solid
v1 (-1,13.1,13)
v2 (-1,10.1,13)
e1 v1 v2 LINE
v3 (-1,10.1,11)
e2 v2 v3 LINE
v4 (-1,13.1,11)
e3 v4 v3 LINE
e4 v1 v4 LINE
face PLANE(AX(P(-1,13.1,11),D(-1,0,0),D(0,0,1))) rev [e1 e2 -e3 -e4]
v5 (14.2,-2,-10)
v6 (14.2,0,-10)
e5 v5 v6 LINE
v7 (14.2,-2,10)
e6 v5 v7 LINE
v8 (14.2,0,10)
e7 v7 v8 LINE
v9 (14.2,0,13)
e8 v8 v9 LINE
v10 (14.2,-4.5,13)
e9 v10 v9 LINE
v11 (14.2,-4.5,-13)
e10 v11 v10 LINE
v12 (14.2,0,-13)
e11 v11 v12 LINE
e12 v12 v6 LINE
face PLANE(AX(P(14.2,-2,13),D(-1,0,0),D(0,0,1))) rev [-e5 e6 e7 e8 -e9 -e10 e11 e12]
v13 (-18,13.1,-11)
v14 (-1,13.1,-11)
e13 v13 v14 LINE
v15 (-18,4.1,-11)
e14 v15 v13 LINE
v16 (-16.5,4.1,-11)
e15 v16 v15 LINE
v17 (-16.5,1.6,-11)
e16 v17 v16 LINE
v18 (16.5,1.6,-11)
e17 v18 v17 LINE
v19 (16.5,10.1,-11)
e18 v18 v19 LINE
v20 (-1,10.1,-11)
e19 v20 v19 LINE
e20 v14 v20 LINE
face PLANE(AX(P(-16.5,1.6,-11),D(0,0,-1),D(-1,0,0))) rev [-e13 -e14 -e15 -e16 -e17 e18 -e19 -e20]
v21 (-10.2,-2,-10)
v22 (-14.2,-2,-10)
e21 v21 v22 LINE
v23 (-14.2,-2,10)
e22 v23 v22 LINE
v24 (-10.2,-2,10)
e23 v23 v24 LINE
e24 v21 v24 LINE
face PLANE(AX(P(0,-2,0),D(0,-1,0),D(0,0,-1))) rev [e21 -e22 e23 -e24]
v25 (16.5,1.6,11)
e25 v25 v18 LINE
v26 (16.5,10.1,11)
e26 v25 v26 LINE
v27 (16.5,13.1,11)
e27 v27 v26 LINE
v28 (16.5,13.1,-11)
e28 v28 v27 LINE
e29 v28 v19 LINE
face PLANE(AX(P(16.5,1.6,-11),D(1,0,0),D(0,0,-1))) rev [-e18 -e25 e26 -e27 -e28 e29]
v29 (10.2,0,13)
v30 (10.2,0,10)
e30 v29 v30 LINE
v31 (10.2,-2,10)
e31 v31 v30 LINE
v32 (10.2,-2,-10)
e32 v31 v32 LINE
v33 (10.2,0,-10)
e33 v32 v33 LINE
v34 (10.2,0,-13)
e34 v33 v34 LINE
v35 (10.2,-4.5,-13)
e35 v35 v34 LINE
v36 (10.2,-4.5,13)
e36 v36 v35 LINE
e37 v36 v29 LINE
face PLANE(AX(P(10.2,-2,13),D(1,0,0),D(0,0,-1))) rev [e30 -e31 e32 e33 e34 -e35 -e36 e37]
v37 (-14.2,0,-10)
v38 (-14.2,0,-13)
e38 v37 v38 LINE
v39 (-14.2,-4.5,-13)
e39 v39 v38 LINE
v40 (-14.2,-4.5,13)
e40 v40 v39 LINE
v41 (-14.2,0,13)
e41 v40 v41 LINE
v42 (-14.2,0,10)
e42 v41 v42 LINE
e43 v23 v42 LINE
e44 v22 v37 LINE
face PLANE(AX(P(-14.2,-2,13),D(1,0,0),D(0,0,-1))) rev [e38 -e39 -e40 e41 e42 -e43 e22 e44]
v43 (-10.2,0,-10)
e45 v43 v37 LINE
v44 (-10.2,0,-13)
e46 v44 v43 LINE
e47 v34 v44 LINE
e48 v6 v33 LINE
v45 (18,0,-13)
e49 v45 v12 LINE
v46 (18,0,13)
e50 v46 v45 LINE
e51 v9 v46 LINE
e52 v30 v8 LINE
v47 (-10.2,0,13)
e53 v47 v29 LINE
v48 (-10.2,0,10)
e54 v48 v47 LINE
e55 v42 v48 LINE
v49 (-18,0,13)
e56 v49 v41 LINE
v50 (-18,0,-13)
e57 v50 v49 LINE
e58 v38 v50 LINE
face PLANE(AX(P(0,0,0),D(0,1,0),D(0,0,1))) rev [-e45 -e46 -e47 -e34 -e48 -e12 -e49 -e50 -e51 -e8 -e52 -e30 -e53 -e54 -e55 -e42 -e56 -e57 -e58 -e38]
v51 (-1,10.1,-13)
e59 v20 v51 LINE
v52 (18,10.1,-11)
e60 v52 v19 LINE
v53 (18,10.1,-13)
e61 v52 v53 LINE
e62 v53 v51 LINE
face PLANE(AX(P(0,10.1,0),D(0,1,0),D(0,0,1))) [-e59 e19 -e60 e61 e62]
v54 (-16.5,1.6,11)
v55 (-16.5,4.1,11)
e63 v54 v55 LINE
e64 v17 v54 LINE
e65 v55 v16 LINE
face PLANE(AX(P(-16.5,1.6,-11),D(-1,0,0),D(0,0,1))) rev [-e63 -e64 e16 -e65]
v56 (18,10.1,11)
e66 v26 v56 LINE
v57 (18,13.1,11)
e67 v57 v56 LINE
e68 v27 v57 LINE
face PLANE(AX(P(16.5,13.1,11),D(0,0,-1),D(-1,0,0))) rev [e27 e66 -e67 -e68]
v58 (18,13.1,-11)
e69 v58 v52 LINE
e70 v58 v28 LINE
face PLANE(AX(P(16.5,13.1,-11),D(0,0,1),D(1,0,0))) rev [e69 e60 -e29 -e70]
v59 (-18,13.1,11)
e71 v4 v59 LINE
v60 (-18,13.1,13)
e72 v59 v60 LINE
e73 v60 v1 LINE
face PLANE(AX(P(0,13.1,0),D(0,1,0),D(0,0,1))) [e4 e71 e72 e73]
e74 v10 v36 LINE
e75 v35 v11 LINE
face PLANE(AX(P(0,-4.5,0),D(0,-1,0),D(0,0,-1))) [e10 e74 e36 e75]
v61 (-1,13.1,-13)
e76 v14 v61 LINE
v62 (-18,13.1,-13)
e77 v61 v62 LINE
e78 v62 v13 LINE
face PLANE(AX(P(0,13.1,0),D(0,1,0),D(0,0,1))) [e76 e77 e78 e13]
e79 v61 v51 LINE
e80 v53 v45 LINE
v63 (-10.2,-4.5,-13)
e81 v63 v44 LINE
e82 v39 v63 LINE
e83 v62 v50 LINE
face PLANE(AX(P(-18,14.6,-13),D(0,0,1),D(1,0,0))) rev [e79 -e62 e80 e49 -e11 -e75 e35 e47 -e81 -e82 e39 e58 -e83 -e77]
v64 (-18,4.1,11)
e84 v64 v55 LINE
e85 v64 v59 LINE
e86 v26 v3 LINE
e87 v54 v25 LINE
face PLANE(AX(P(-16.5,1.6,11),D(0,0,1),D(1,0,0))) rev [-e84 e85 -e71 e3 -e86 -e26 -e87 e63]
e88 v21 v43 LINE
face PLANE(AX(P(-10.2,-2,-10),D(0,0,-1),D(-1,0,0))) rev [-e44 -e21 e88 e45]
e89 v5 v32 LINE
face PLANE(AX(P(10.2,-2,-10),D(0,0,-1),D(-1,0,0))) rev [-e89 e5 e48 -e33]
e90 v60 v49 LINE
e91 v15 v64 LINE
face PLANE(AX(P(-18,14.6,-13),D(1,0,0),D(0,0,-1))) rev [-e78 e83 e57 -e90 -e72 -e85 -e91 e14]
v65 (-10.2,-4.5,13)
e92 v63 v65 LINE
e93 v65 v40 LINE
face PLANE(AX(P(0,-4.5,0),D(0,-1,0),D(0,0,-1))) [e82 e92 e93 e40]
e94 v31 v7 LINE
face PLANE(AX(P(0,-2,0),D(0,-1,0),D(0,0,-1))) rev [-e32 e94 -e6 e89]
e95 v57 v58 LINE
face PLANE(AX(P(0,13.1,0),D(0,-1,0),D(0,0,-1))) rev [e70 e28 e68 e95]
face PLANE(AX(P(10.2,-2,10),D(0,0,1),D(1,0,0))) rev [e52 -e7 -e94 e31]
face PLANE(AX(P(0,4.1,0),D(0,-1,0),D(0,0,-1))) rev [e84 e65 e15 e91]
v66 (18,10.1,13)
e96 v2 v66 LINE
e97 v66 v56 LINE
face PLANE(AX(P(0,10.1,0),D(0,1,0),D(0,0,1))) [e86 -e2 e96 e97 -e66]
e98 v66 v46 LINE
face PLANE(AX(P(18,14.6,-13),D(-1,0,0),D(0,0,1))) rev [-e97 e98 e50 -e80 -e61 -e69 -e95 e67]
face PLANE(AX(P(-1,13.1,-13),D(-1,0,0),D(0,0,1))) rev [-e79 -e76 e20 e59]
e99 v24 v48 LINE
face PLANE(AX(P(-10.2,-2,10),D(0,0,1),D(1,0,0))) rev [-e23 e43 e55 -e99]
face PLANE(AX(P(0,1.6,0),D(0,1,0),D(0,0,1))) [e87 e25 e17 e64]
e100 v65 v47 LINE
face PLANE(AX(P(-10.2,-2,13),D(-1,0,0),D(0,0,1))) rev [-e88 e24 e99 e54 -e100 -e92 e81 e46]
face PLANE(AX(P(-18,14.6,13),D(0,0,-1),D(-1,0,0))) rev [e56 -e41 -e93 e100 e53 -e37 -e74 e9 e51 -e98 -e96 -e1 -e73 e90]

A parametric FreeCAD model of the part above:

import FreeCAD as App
import Part
import Sketcher
from FreeCAD import Vector
Q = App.Units.Quantity

doc = App.newDocument("Part")
params = doc.addObject("Spreadsheet::Sheet", "Params")
for row, (alias, value) in enumerate([
    ("sketch1_width", "36 mm"),
    ("sketch1_height", "26 mm"),
    ("pad1_length", "14.6 mm"),
    ("sketch2_width", "33 mm"),
    ("sketch2_height", "22 mm"),
    ("pocket1_length", "13 mm"),
    ("sketch3_width", "36 mm"),
    ("sketch3_height", "26 mm"),
    ("pocket2_length", "4.5 mm"),
    ("sketch4_height", "22 mm"),
    ("sketch4_width", "1.5 mm"),
    ("pocket3_length", "6 mm"),
    ("sketch5_width", "17 mm"),
    ("sketch5_height", "2 mm"),
    ("sketch5_height2", "22 mm"),
    ("sketch5_width2", "1.5 mm"),
    ("pad2_length", "3 mm"),
    ("sketch6_width", "4 mm"),
    ("sketch6_height", "3 mm"),
    ("pad3_length", "2 mm"),
    ("sketch7_width", "4 mm"),
    ("sketch7_height", "26 mm"),
    ("pad4_length", "2.5 mm"),
], start=1):
    params.set(f"A{row}", alias)
    params.set(f"B{row}", "=" + value)
    params.setAlias(f"B{row}", alias)

body = doc.addObject("PartDesign::Body", "Body")

sketch1 = body.newObject("Sketcher::SketchObject", "Sketch")
sketch1.AttachmentSupport = (doc.getObject("XZ_Plane"), [""])
sketch1.MapMode = "FlatFace"
sketch1.addGeometry(Part.LineSegment(Vector(-18, -13, 0), Vector(-18, 13, 0)), False)
sketch1.addGeometry(Part.LineSegment(Vector(-18, 13, 0), Vector(18, 13, 0)), False)
sketch1.addGeometry(Part.LineSegment(Vector(18, 13, 0), Vector(18, -13, 0)), False)
sketch1.addGeometry(Part.LineSegment(Vector(18, -13, 0), Vector(-18, -13, 0)), False)
sketch1.addConstraint(Sketcher.Constraint("Coincident", 0, 2, 1, 1))
sketch1.addConstraint(Sketcher.Constraint("Coincident", 1, 2, 2, 1))
sketch1.addConstraint(Sketcher.Constraint("Coincident", 2, 2, 3, 1))
sketch1.addConstraint(Sketcher.Constraint("Coincident", 3, 2, 0, 1))
sketch1.addConstraint(Sketcher.Constraint("Vertical", 0))
sketch1.addConstraint(Sketcher.Constraint("Horizontal", 1))
sketch1.addConstraint(Sketcher.Constraint("Vertical", 2))
sketch1.addConstraint(Sketcher.Constraint("Horizontal", 3))
sketch1.addConstraint(Sketcher.Constraint("Symmetric", 0, 2, 2, 2, -1, 1))
sketch1.addConstraint(Sketcher.Constraint("DistanceX", 1, 1, 1, 2, Q("36 mm")))
sketch1.addConstraint(Sketcher.Constraint("DistanceY", 0, 1, 0, 2, Q("26 mm")))
sketch1.setExpression("Constraints[9]", "Params.sketch1_width")
sketch1.setExpression("Constraints[10]", "Params.sketch1_height")
pad1 = body.newObject("PartDesign::Pad", "Pad")
pad1.Profile = sketch1
pad1.setExpression("Length", "Params.pad1_length")
pad1.Reversed = True

sketch2 = body.newObject("Sketcher::SketchObject", "Sketch001")
sketch2.AttachmentSupport = (doc.getObject("XZ_Plane"), [""])
sketch2.MapMode = "FlatFace"
sketch2.AttachmentOffset = App.Placement(Vector(0, 0, -14.6), App.Rotation())
sketch2.addGeometry(Part.LineSegment(Vector(-16, -11, 0), Vector(-16, 11, 0)), False)
sketch2.addGeometry(Part.LineSegment(Vector(-16, 11, 0), Vector(16, 11, 0)), False)
sketch2.addGeometry(Part.LineSegment(Vector(16, 11, 0), Vector(16, -11, 0)), False)
sketch2.addGeometry(Part.LineSegment(Vector(16, -11, 0), Vector(-16, -11, 0)), False)
sketch2.addConstraint(Sketcher.Constraint("Coincident", 0, 2, 1, 1))
sketch2.addConstraint(Sketcher.Constraint("Coincident", 1, 2, 2, 1))
sketch2.addConstraint(Sketcher.Constraint("Coincident", 2, 2, 3, 1))
sketch2.addConstraint(Sketcher.Constraint("Coincident", 3, 2, 0, 1))
sketch2.addConstraint(Sketcher.Constraint("Vertical", 0))
sketch2.addConstraint(Sketcher.Constraint("Horizontal", 1))
sketch2.addConstraint(Sketcher.Constraint("Vertical", 2))
sketch2.addConstraint(Sketcher.Constraint("Horizontal", 3))
sketch2.addConstraint(Sketcher.Constraint("Symmetric", 0, 2, 2, 2, -1, 1))
sketch2.addConstraint(Sketcher.Constraint("DistanceX", 1, 1, 1, 2, Q("33 mm")))
sketch2.addConstraint(Sketcher.Constraint("DistanceY", 0, 1, 0, 2, Q("22 mm")))
sketch2.setExpression("Constraints[9]", "Params.sketch2_width")
sketch2.setExpression("Constraints[10]", "Params.sketch2_height")
pocket1 = body.newObject("PartDesign::Pocket", "Pocket")
pocket1.Profile = sketch2
pocket1.setExpression("Length", "Params.pocket1_length")
pocket1.Reversed = True

sketch3 = body.newObject("Sketcher::SketchObject", "Sketch002")
sketch3.AttachmentSupport = (doc.getObject("XZ_Plane"), [""])
sketch3.MapMode = "FlatFace"
sketch3.AttachmentOffset = App.Placement(Vector(0, 0, -14.6), App.Rotation())
sketch3.addGeometry(Part.LineSegment(Vector(-18, -13, 0), Vector(-18, 13, 0)), False)
sketch3.addGeometry(Part.LineSegment(Vector(-18, 13, 0), Vector(18, 13, 0)), False)
sketch3.addGeometry(Part.LineSegment(Vector(18, 13, 0), Vector(18, -13, 0)), False)
sketch3.addGeometry(Part.LineSegment(Vector(18, -13, 0), Vector(-18, -13, 0)), False)
sketch3.addConstraint(Sketcher.Constraint("Coincident", 0, 2, 1, 1))
sketch3.addConstraint(Sketcher.Constraint("Coincident", 1, 2, 2, 1))
sketch3.addConstraint(Sketcher.Constraint("Coincident", 2, 2, 3, 1))
sketch3.addConstraint(Sketcher.Constraint("Coincident", 3, 2, 0, 1))
sketch3.addConstraint(Sketcher.Constraint("Vertical", 0))
sketch3.addConstraint(Sketcher.Constraint("Horizontal", 1))
sketch3.addConstraint(Sketcher.Constraint("Vertical", 2))
sketch3.addConstraint(Sketcher.Constraint("Horizontal", 3))
sketch3.addConstraint(Sketcher.Constraint("Symmetric", 0, 2, 2, 2, -1, 1))
sketch3.addConstraint(Sketcher.Constraint("DistanceX", 1, 1, 1, 2, Q("36 mm")))
sketch3.addConstraint(Sketcher.Constraint("DistanceY", 0, 1, 0, 2, Q("26 mm")))
sketch3.setExpression("Constraints[9]", "Params.sketch3_width")
sketch3.setExpression("Constraints[10]", "Params.sketch3_height")
pocket2 = body.newObject("PartDesign::Pocket", "Pocket001")
pocket2.Profile = sketch3
pocket2.setExpression("Length", "Params.pocket2_length")
pocket2.Reversed = True

sketch4 = body.newObject("Sketcher::SketchObject", "Sketch003")
sketch4.AttachmentSupport = (doc.getObject("XZ_Plane"), [""])
sketch4.MapMode = "FlatFace"
sketch4.AttachmentOffset = App.Placement(Vector(0, 0, -10.1), App.Rotation())
sketch4.addGeometry(Part.LineSegment(Vector(-18, -11, 0), Vector(-18, 11, 0)), False)
sketch4.addGeometry(Part.LineSegment(Vector(-18, 11, 0), Vector(-16.5, 11, 0)), False)
sketch4.addGeometry(Part.LineSegment(Vector(-16.5, 11, 0), Vector(-16.5, -11, 0)), False)
sketch4.addGeometry(Part.LineSegment(Vector(-16.5, -11, 0), Vector(-18, -11, 0)), False)
sketch4.addConstraint(Sketcher.Constraint("Coincident", 0, 2, 1, 1))
sketch4.addConstraint(Sketcher.Constraint("Coincident", 1, 2, 2, 1))
sketch4.addConstraint(Sketcher.Constraint("Coincident", 2, 2, 3, 1))
sketch4.addConstraint(Sketcher.Constraint("Coincident", 3, 2, 0, 1))
sketch4.addConstraint(Sketcher.Constraint("Vertical", 0))
sketch4.addConstraint(Sketcher.Constraint("Horizontal", 1))
sketch4.addConstraint(Sketcher.Constraint("Vertical", 2))
sketch4.addConstraint(Sketcher.Constraint("Horizontal", 3))
sketch4.addConstraint(Sketcher.Constraint("DistanceY", 0, 1, 0, 2, Q("22 mm")))
sketch4.addConstraint(Sketcher.Constraint("DistanceX", 1, 1, 1, 2, Q("1.5 mm")))
sketch4.addConstraint(Sketcher.Constraint("DistanceX", 0, 2, -1, 1, Q("18 mm")))
sketch4.addConstraint(Sketcher.Constraint("DistanceY", -1, 1, 0, 2, Q("11 mm")))
sketch4.setExpression("Constraints[8]", "Params.sketch4_height")
sketch4.setExpression("Constraints[9]", "Params.sketch4_width")
pocket3 = body.newObject("PartDesign::Pocket", "Pocket002")
pocket3.Profile = sketch4
pocket3.setExpression("Length", "Params.pocket3_length")
pocket3.Reversed = True

sketch5 = body.newObject("Sketcher::SketchObject", "Sketch004")
sketch5.AttachmentSupport = (doc.getObject("XZ_Plane"), [""])
sketch5.MapMode = "FlatFace"
sketch5.AttachmentOffset = App.Placement(Vector(0, 0, -10.1), App.Rotation())
sketch5.addGeometry(Part.LineSegment(Vector(-18, -13, 0), Vector(-18, -11, 0)), False)
sketch5.addGeometry(Part.LineSegment(Vector(-18, -11, 0), Vector(-1, -11, 0)), False)
sketch5.addGeometry(Part.LineSegment(Vector(-1, -11, 0), Vector(-1, -13, 0)), False)
sketch5.addGeometry(Part.LineSegment(Vector(-1, -13, 0), Vector(-18, -13, 0)), False)
sketch5.addGeometry(Part.LineSegment(Vector(-18, 11, 0), Vector(-18, 13, 0)), False)
sketch5.addGeometry(Part.LineSegment(Vector(-18, 13, 0), Vector(-1, 13, 0)), False)
sketch5.addGeometry(Part.LineSegment(Vector(-1, 13, 0), Vector(-1, 11, 0)), False)
sketch5.addGeometry(Part.LineSegment(Vector(-1, 11, 0), Vector(-18, 11, 0)), False)
sketch5.addGeometry(Part.LineSegment(Vector(16.5, -11, 0), Vector(16.5, 11, 0)), False)
sketch5.addGeometry(Part.LineSegment(Vector(16.5, 11, 0), Vector(18, 11, 0)), False)
sketch5.addGeometry(Part.LineSegment(Vector(18, 11, 0), Vector(18, -11, 0)), False)
sketch5.addGeometry(Part.LineSegment(Vector(18, -11, 0), Vector(16.5, -11, 0)), False)
sketch5.addConstraint(Sketcher.Constraint("Coincident", 0, 2, 1, 1))
sketch5.addConstraint(Sketcher.Constraint("Coincident", 1, 2, 2, 1))
sketch5.addConstraint(Sketcher.Constraint("Coincident", 2, 2, 3, 1))
sketch5.addConstraint(Sketcher.Constraint("Coincident", 3, 2, 0, 1))
sketch5.addConstraint(Sketcher.Constraint("Coincident", 4, 2, 5, 1))
sketch5.addConstraint(Sketcher.Constraint("Coincident", 5, 2, 6, 1))
sketch5.addConstraint(Sketcher.Constraint("Coincident", 6, 2, 7, 1))
sketch5.addConstraint(Sketcher.Constraint("Coincident", 7, 2, 4, 1))
sketch5.addConstraint(Sketcher.Constraint("Coincident", 8, 2, 9, 1))
sketch5.addConstraint(Sketcher.Constraint("Coincident", 9, 2, 10, 1))
sketch5.addConstraint(Sketcher.Constraint("Coincident", 10, 2, 11, 1))
sketch5.addConstraint(Sketcher.Constraint("Coincident", 11, 2, 8, 1))
sketch5.addConstraint(Sketcher.Constraint("Vertical", 0))
sketch5.addConstraint(Sketcher.Constraint("Horizontal", 1))
sketch5.addConstraint(Sketcher.Constraint("Vertical", 2))
sketch5.addConstraint(Sketcher.Constraint("Horizontal", 3))
sketch5.addConstraint(Sketcher.Constraint("Vertical", 4))
sketch5.addConstraint(Sketcher.Constraint("Horizontal", 5))
sketch5.addConstraint(Sketcher.Constraint("Vertical", 6))
sketch5.addConstraint(Sketcher.Constraint("Horizontal", 7))
sketch5.addConstraint(Sketcher.Constraint("Vertical", 8))
sketch5.addConstraint(Sketcher.Constraint("Horizontal", 9))
sketch5.addConstraint(Sketcher.Constraint("Vertical", 10))
sketch5.addConstraint(Sketcher.Constraint("Horizontal", 11))
sketch5.addConstraint(Sketcher.Constraint("Symmetric", 0, 2, 9, 2, -1, 1))
sketch5.addConstraint(Sketcher.Constraint("Symmetric", 7, 2, 10, 2, -1, 1))
sketch5.addConstraint(Sketcher.Constraint("Symmetric", 2, 2, 5, 2, -1))
sketch5.addConstraint(Sketcher.Constraint("Horizontal", 7, 2, 8, 2))
sketch5.addConstraint(Sketcher.Constraint("DistanceX", 1, 1, 1, 2, Q("17 mm")))
sketch5.addConstraint(Sketcher.Constraint("DistanceY", 0, 1, 0, 2, Q("2 mm")))
sketch5.addConstraint(Sketcher.Constraint("DistanceY", 8, 1, 8, 2, Q("22 mm")))
sketch5.addConstraint(Sketcher.Constraint("DistanceX", 9, 1, 9, 2, Q("1.5 mm")))
sketch5.addConstraint(Sketcher.Constraint("DistanceX", 0, 2, -1, 1, Q("18 mm")))
sketch5.setExpression("Constraints[28]", "Params.sketch5_width")
sketch5.setExpression("Constraints[29]", "Params.sketch5_height")
sketch5.setExpression("Constraints[30]", "Params.sketch5_height2")
sketch5.setExpression("Constraints[31]", "Params.sketch5_width2")
pad2 = body.newObject("PartDesign::Pad", "Pad001")
pad2.Profile = sketch5
pad2.setExpression("Length", "Params.pad2_length")
pad2.Reversed = True

sketch6 = body.newObject("Sketcher::SketchObject", "Sketch005")
sketch6.AttachmentSupport = (doc.getObject("XZ_Plane"), [""])
sketch6.MapMode = "FlatFace"
sketch6.addGeometry(Part.LineSegment(Vector(14.2, 10, 0), Vector(14.2, 13, 0)), False)
sketch6.addGeometry(Part.LineSegment(Vector(14.2, 13, 0), Vector(10.2, 13, 0)), False)
sketch6.addGeometry(Part.LineSegment(Vector(10.2, 13, 0), Vector(10.2, 10, 0)), False)
sketch6.addGeometry(Part.LineSegment(Vector(10.2, 10, 0), Vector(14.2, 10, 0)), False)
sketch6.addGeometry(Part.LineSegment(Vector(-10.2, 10, 0), Vector(-10.2, 13, 0)), False)
sketch6.addGeometry(Part.LineSegment(Vector(-10.2, 13, 0), Vector(-14.2, 13, 0)), False)
sketch6.addGeometry(Part.LineSegment(Vector(-14.2, 13, 0), Vector(-14.2, 10, 0)), False)
sketch6.addGeometry(Part.LineSegment(Vector(-14.2, 10, 0), Vector(-10.2, 10, 0)), False)
sketch6.addGeometry(Part.LineSegment(Vector(14.2, -13, 0), Vector(14.2, -10, 0)), False)
sketch6.addGeometry(Part.LineSegment(Vector(14.2, -10, 0), Vector(10.2, -10, 0)), False)
sketch6.addGeometry(Part.LineSegment(Vector(10.2, -10, 0), Vector(10.2, -13, 0)), False)
sketch6.addGeometry(Part.LineSegment(Vector(10.2, -13, 0), Vector(14.2, -13, 0)), False)
sketch6.addGeometry(Part.LineSegment(Vector(-10.2, -13, 0), Vector(-10.2, -10, 0)), False)
sketch6.addGeometry(Part.LineSegment(Vector(-10.2, -10, 0), Vector(-14.2, -10, 0)), False)
sketch6.addGeometry(Part.LineSegment(Vector(-14.2, -10, 0), Vector(-14.2, -13, 0)), False)
sketch6.addGeometry(Part.LineSegment(Vector(-14.2, -13, 0), Vector(-10.2, -13, 0)), False)
sketch6.addConstraint(Sketcher.Constraint("Coincident", 0, 2, 1, 1))
sketch6.addConstraint(Sketcher.Constraint("Coincident", 1, 2, 2, 1))
sketch6.addConstraint(Sketcher.Constraint("Coincident", 2, 2, 3, 1))
sketch6.addConstraint(Sketcher.Constraint("Coincident", 3, 2, 0, 1))
sketch6.addConstraint(Sketcher.Constraint("Coincident", 4, 2, 5, 1))
sketch6.addConstraint(Sketcher.Constraint("Coincident", 5, 2, 6, 1))
sketch6.addConstraint(Sketcher.Constraint("Coincident", 6, 2, 7, 1))
sketch6.addConstraint(Sketcher.Constraint("Coincident", 7, 2, 4, 1))
sketch6.addConstraint(Sketcher.Constraint("Coincident", 8, 2, 9, 1))
sketch6.addConstraint(Sketcher.Constraint("Coincident", 9, 2, 10, 1))
sketch6.addConstraint(Sketcher.Constraint("Coincident", 10, 2, 11, 1))
sketch6.addConstraint(Sketcher.Constraint("Coincident", 11, 2, 8, 1))
sketch6.addConstraint(Sketcher.Constraint("Coincident", 12, 2, 13, 1))
sketch6.addConstraint(Sketcher.Constraint("Coincident", 13, 2, 14, 1))
sketch6.addConstraint(Sketcher.Constraint("Coincident", 14, 2, 15, 1))
sketch6.addConstraint(Sketcher.Constraint("Coincident", 15, 2, 12, 1))
sketch6.addConstraint(Sketcher.Constraint("Vertical", 0))
sketch6.addConstraint(Sketcher.Constraint("Horizontal", 1))
sketch6.addConstraint(Sketcher.Constraint("Vertical", 2))
sketch6.addConstraint(Sketcher.Constraint("Horizontal", 3))
sketch6.addConstraint(Sketcher.Constraint("Vertical", 4))
sketch6.addConstraint(Sketcher.Constraint("Horizontal", 5))
sketch6.addConstraint(Sketcher.Constraint("Vertical", 6))
sketch6.addConstraint(Sketcher.Constraint("Horizontal", 7))
sketch6.addConstraint(Sketcher.Constraint("Vertical", 8))
sketch6.addConstraint(Sketcher.Constraint("Horizontal", 9))
sketch6.addConstraint(Sketcher.Constraint("Vertical", 10))
sketch6.addConstraint(Sketcher.Constraint("Horizontal", 11))
sketch6.addConstraint(Sketcher.Constraint("Vertical", 12))
sketch6.addConstraint(Sketcher.Constraint("Horizontal", 13))
sketch6.addConstraint(Sketcher.Constraint("Vertical", 14))
sketch6.addConstraint(Sketcher.Constraint("Horizontal", 15))
sketch6.addConstraint(Sketcher.Constraint("Symmetric", 6, 2, 8, 2, -1, 1))
sketch6.addConstraint(Sketcher.Constraint("Symmetric", 4, 2, 10, 2, -1, 1))
sketch6.addConstraint(Sketcher.Constraint("Symmetric", 2, 2, 12, 2, -1, 1))
sketch6.addConstraint(Sketcher.Constraint("Symmetric", 0, 2, 14, 2, -1, 1))
sketch6.addConstraint(Sketcher.Constraint("Symmetric", 1, 2, 4, 2, -2))
sketch6.addConstraint(Sketcher.Constraint("Symmetric", 3, 2, 6, 2, -2))
sketch6.addConstraint(Sketcher.Constraint("DistanceX", 1, 2, 1, 1, Q("4 mm")))
sketch6.addConstraint(Sketcher.Constraint("DistanceY", 0, 1, 0, 2, Q("3 mm")))
sketch6.addConstraint(Sketcher.Constraint("DistanceY", -1, 1, 0, 2, Q("13 mm")))
sketch6.addConstraint(Sketcher.Constraint("DistanceX", -1, 1, 0, 2, Q("14.2 mm")))
sketch6.setExpression("Constraints[38]", "Params.sketch6_width")
sketch6.setExpression("Constraints[39]", "Params.sketch6_height")
pad3 = body.newObject("PartDesign::Pad", "Pad002")
pad3.Profile = sketch6
pad3.setExpression("Length", "Params.pad3_length")

sketch7 = body.newObject("Sketcher::SketchObject", "Sketch006")
sketch7.AttachmentSupport = (doc.getObject("XZ_Plane"), [""])
sketch7.MapMode = "FlatFace"
sketch7.AttachmentOffset = App.Placement(Vector(0, 0, 2), App.Rotation())
sketch7.addGeometry(Part.LineSegment(Vector(14.2, -13, 0), Vector(14.2, 13, 0)), False)
sketch7.addGeometry(Part.LineSegment(Vector(14.2, 13, 0), Vector(10.2, 13, 0)), False)
sketch7.addGeometry(Part.LineSegment(Vector(10.2, 13, 0), Vector(10.2, -13, 0)), False)
sketch7.addGeometry(Part.LineSegment(Vector(10.2, -13, 0), Vector(14.2, -13, 0)), False)
sketch7.addGeometry(Part.LineSegment(Vector(-10.2, -13, 0), Vector(-10.2, 13, 0)), False)
sketch7.addGeometry(Part.LineSegment(Vector(-10.2, 13, 0), Vector(-14.2, 13, 0)), False)
sketch7.addGeometry(Part.LineSegment(Vector(-14.2, 13, 0), Vector(-14.2, -13, 0)), False)
sketch7.addGeometry(Part.LineSegment(Vector(-14.2, -13, 0), Vector(-10.2, -13, 0)), False)
sketch7.addConstraint(Sketcher.Constraint("Coincident", 0, 2, 1, 1))
sketch7.addConstraint(Sketcher.Constraint("Coincident", 1, 2, 2, 1))
sketch7.addConstraint(Sketcher.Constraint("Coincident", 2, 2, 3, 1))
sketch7.addConstraint(Sketcher.Constraint("Coincident", 3, 2, 0, 1))
sketch7.addConstraint(Sketcher.Constraint("Coincident", 4, 2, 5, 1))
sketch7.addConstraint(Sketcher.Constraint("Coincident", 5, 2, 6, 1))
sketch7.addConstraint(Sketcher.Constraint("Coincident", 6, 2, 7, 1))
sketch7.addConstraint(Sketcher.Constraint("Coincident", 7, 2, 4, 1))
sketch7.addConstraint(Sketcher.Constraint("Vertical", 0))
sketch7.addConstraint(Sketcher.Constraint("Horizontal", 1))
sketch7.addConstraint(Sketcher.Constraint("Vertical", 2))
sketch7.addConstraint(Sketcher.Constraint("Horizontal", 3))
sketch7.addConstraint(Sketcher.Constraint("Vertical", 4))
sketch7.addConstraint(Sketcher.Constraint("Horizontal", 5))
sketch7.addConstraint(Sketcher.Constraint("Vertical", 6))
sketch7.addConstraint(Sketcher.Constraint("Horizontal", 7))
sketch7.addConstraint(Sketcher.Constraint("Symmetric", 2, 2, 4, 2, -1, 1))
sketch7.addConstraint(Sketcher.Constraint("Symmetric", 0, 2, 6, 2, -1, 1))
sketch7.addConstraint(Sketcher.Constraint("Horizontal", 1, 2, 4, 2))
sketch7.addConstraint(Sketcher.Constraint("DistanceX", 1, 2, 1, 1, Q("4 mm")))
sketch7.addConstraint(Sketcher.Constraint("DistanceY", 0, 1, 0, 2, Q("26 mm")))
sketch7.addConstraint(Sketcher.Constraint("DistanceX", -1, 1, 0, 2, Q("14.2 mm")))
sketch7.setExpression("Constraints[19]", "Params.sketch7_width")
sketch7.setExpression("Constraints[20]", "Params.sketch7_height")
pad4 = body.newObject("PartDesign::Pad", "Pad003")
pad4.Profile = sketch7
pad4.setExpression("Length", "Params.pad4_length")

doc.recompute()
